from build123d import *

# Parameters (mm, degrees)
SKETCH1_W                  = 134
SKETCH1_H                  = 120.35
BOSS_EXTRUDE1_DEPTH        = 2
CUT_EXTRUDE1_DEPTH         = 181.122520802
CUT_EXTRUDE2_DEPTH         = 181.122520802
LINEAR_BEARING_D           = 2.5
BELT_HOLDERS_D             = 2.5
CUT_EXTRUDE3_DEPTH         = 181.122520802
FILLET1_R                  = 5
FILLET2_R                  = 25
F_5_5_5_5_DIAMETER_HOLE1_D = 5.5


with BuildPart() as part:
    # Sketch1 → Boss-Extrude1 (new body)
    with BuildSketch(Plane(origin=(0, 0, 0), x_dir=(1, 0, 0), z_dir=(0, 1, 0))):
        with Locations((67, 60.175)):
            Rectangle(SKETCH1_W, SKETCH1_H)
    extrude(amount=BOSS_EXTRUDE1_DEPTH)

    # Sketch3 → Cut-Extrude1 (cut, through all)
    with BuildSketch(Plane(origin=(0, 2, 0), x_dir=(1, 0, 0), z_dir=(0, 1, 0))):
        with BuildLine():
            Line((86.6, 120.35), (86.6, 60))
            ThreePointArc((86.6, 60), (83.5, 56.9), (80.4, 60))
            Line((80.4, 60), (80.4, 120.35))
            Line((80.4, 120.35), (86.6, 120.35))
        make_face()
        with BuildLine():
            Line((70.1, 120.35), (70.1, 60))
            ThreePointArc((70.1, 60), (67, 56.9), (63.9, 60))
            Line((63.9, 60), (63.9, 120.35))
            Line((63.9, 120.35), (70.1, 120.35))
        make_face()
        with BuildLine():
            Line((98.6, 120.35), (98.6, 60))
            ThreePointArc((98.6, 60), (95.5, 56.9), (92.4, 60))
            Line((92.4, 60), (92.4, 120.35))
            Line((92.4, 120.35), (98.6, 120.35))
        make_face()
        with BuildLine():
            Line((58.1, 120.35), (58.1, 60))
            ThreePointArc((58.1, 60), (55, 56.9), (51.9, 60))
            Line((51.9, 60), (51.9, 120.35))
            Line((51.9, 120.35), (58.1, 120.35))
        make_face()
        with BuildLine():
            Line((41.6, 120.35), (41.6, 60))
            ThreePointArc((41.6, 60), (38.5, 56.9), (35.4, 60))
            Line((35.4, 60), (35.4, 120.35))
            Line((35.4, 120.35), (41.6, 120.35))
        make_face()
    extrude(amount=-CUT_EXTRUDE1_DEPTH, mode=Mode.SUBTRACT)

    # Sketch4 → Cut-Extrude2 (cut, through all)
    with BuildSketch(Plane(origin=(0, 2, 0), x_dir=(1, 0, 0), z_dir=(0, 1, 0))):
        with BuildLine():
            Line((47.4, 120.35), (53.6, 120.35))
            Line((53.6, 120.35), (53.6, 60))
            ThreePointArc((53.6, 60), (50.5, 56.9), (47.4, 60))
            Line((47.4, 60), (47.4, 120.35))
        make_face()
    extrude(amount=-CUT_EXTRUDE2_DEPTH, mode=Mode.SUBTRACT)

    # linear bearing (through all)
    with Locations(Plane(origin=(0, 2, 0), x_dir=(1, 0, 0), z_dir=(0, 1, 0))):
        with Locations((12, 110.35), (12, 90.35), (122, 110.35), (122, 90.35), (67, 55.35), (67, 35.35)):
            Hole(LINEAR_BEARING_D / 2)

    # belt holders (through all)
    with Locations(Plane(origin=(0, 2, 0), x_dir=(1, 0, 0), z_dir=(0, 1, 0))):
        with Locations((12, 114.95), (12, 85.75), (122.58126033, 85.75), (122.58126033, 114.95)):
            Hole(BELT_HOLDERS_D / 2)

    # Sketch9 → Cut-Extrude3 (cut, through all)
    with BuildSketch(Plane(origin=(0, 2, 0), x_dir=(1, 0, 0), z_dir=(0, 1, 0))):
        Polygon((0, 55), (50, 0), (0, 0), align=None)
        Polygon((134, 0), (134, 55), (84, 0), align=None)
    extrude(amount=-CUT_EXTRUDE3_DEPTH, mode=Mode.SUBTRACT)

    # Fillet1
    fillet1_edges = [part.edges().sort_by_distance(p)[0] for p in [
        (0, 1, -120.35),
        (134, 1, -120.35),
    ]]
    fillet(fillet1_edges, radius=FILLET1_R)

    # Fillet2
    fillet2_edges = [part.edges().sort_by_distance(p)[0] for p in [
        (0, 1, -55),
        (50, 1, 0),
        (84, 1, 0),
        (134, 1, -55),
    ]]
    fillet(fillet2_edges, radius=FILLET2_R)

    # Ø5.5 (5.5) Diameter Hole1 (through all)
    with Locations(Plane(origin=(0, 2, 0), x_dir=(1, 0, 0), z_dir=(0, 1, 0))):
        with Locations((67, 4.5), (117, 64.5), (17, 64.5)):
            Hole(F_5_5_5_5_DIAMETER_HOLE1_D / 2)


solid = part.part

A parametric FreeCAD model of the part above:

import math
import FreeCAD as App
import Part
import Sketcher
from FreeCAD import Vector
Q = App.Units.Quantity


def edges_at(feature, points):
    """Names of the edges that pass closest to the given points."""
    edges = feature.Shape.Edges
    near = lambda p: min(range(len(edges)), key=lambda i: edges[i].distToShape(Part.Vertex(*p))[0])
    return sorted({f"Edge{near(p) + 1}" for p in points})


def add_polygon(sketch, points):
    """Adds a closed chain of lines whose ends are joined by coincident constraints."""
    first, n = sketch.GeometryCount, len(points)
    for a, b in zip(points, points[1:] + points[:1]):
        sketch.addGeometry(Part.LineSegment(App.Vector(*a, 0), App.Vector(*b, 0)), False)
    for i in range(n):
        sketch.addConstraint(Sketcher.Constraint("Coincident", first + i, 2, first + (i + 1) % n, 1))

doc = App.newDocument("Part")
body = doc.addObject("PartDesign::Body", "Body")

# Sketch on XZ plane
sketch1 = body.newObject("Sketcher::SketchObject", "Sketch")
sketch1.AttachmentSupport = (doc.getObject("XZ_Plane"), [""])
sketch1.MapMode = "FlatFace"
add_polygon(sketch1, [(0, -120), (0, 0), (134, 0), (134, -120)])  # lines 0-3
sketch1.addConstraint([
    Sketcher.Constraint("Vertical", 0),
    Sketcher.Constraint("Horizontal", 1),
    Sketcher.Constraint("Vertical", 2),
    Sketcher.Constraint("Horizontal", 3),
    Sketcher.Constraint("Coincident", 0, 2, -1, 1),
    Sketcher.Constraint("DistanceX", 1, 1, 1, 2, Q("134 mm")),
    Sketcher.Constraint("DistanceY", 0, 1, 0, 2, Q("120.35 mm")),
])
pad1 = body.newObject("PartDesign::Pad", "Pad")
pad1.Profile = sketch1
pad1.Length = 2
pad1.Reversed = True

# Sketch on XZ plane
sketch2 = body.newObject("Sketcher::SketchObject", "Sketch001")
sketch2.AttachmentSupport = (doc.getObject("XZ_Plane"), [""])
sketch2.MapMode = "FlatFace"
sketch2.AttachmentOffset = App.Placement(Vector(0, 0, -2), App.Rotation())
sketch2.addGeometry([
    Part.LineSegment(Vector(86.6, -60, 0), Vector(86.6, -120.3, 0)),  # 0
    Part.LineSegment(Vector(86.6, -120.3, 0), Vector(80.4, -120.3, 0)),  # 1
    Part.LineSegment(Vector(80.4, -120.3, 0), Vector(80.4, -60, 0)),  # 2
    Part.ArcOfCircle(Part.Circle(Vector(83.5, -60, 0), Vector(0, 0, 1), 3.1), math.radians(0), math.radians(180)),  # 3
    Part.LineSegment(Vector(70.1, -60, 0), Vector(70.1, -120.3, 0)),  # 4
    Part.LineSegment(Vector(70.1, -120.3, 0), Vector(63.9, -120.3, 0)),  # 5
    Part.LineSegment(Vector(63.9, -120.3, 0), Vector(63.9, -60, 0)),  # 6
    Part.ArcOfCircle(Part.Circle(Vector(67, -60, 0), Vector(0, 0, 1), 3.1), math.radians(0), math.radians(180)),  # 7
    Part.LineSegment(Vector(98.6, -60, 0), Vector(98.6, -120.3, 0)),  # 8
    Part.LineSegment(Vector(98.6, -120.3, 0), Vector(92.4, -120.3, 0)),  # 9
    Part.LineSegment(Vector(92.4, -120.3, 0), Vector(92.4, -60, 0)),  # 10
    Part.ArcOfCircle(Part.Circle(Vector(95.5, -60, 0), Vector(0, 0, 1), 3.1), math.radians(0), math.radians(180)),  # 11
    Part.LineSegment(Vector(58.1, -60, 0), Vector(58.1, -120.3, 0)),  # 12
    Part.LineSegment(Vector(58.1, -120.3, 0), Vector(51.9, -120.3, 0)),  # 13
    Part.LineSegment(Vector(51.9, -120.3, 0), Vector(51.9, -60, 0)),  # 14
    Part.ArcOfCircle(Part.Circle(Vector(55, -60, 0), Vector(0, 0, 1), 3.1), math.radians(0), math.radians(180)),  # 15
    Part.LineSegment(Vector(41.6, -60, 0), Vector(41.6, -120.3, 0)),  # 16
    Part.LineSegment(Vector(41.6, -120.3, 0), Vector(35.4, -120.3, 0)),  # 17
    Part.LineSegment(Vector(35.4, -120.3, 0), Vector(35.4, -60, 0)),  # 18
    Part.ArcOfCircle(Part.Circle(Vector(38.5, -60, 0), Vector(0, 0, 1), 3.1), math.radians(0), math.radians(180)),  # 19
], False)
sketch2.addConstraint([
    Sketcher.Constraint("Coincident", 0, 2, 1, 1),
    Sketcher.Constraint("Coincident", 1, 2, 2, 1),
    Sketcher.Constraint("Tangent", 2, 2, 3, 2),
    Sketcher.Constraint("Tangent", 3, 1, 0, 1),
    Sketcher.Constraint("Coincident", 4, 2, 5, 1),
    Sketcher.Constraint("Coincident", 5, 2, 6, 1),
    Sketcher.Constraint("Tangent", 6, 2, 7, 2),
    Sketcher.Constraint("Tangent", 7, 1, 4, 1),
    Sketcher.Constraint("Coincident", 8, 2, 9, 1),
    Sketcher.Constraint("Coincident", 9, 2, 10, 1),
    Sketcher.Constraint("Tangent", 10, 2, 11, 2),
    Sketcher.Constraint("Tangent", 11, 1, 8, 1),
    Sketcher.Constraint("Coincident", 12, 2, 13, 1),
    Sketcher.Constraint("Coincident", 13, 2, 14, 1),
    Sketcher.Constraint("Tangent", 14, 2, 15, 2),
    Sketcher.Constraint("Tangent", 15, 1, 12, 1),
    Sketcher.Constraint("Coincident", 16, 2, 17, 1),
    Sketcher.Constraint("Coincident", 17, 2, 18, 1),
    Sketcher.Constraint("Tangent", 18, 2, 19, 2),
    Sketcher.Constraint("Tangent", 19, 1, 16, 1),
    Sketcher.Constraint("Vertical", 0),
    Sketcher.Constraint("Horizontal", 1),
    Sketcher.Constraint("Vertical", 2),
    Sketcher.Constraint("Vertical", 4),
    Sketcher.Constraint("Horizontal", 5),
    Sketcher.Constraint("Vertical", 6),
    Sketcher.Constraint("Vertical", 8),
    Sketcher.Constraint("Horizontal", 9),
    Sketcher.Constraint("Vertical", 10),
    Sketcher.Constraint("Vertical", 12),
    Sketcher.Constraint("Horizontal", 13),
    Sketcher.Constraint("Vertical", 14),
    Sketcher.Constraint("Vertical", 16),
    Sketcher.Constraint("Horizontal", 17),
    Sketcher.Constraint("Vertical", 18),
    Sketcher.Constraint("Equal", 3, 7),
    Sketcher.Constraint("Equal", 7, 11),
    Sketcher.Constraint("Equal", 11, 15),
    Sketcher.Constraint("Equal", 15, 19),
    Sketcher.Constraint("Horizontal", 3, 3, 7, 3),
    Sketcher.Constraint("Horizontal", 7, 3, 11, 3),
    Sketcher.Constraint("Horizontal", 11, 3, 15, 3),
    Sketcher.Constraint("Horizontal", 15, 3, 19, 3),
    Sketcher.Constraint("Horizontal", 1, 2, 4, 2),
    Sketcher.Constraint("Horizontal", 5, 2, 8, 2),
    Sketcher.Constraint("Horizontal", 9, 2, 12, 2),
    Sketcher.Constraint("Horizontal", 13, 2, 16, 2),
    Sketcher.Constraint("Radius", 3, Q("3.1 mm")),
    Sketcher.Constraint("DistanceY", 3, 3, -1, 1, Q("60 mm")),
    Sketcher.Constraint("DistanceX", -1, 1, 7, 3, Q("67 mm")),
    Sketcher.Constraint("DistanceX", -1, 1, 15, 3, Q("55 mm")),
    Sketcher.Constraint("DistanceX", 3, 3, 11, 3, Q("12 mm")),
    Sketcher.Constraint("DistanceX", 19, 3, 3, 3, Q("45 mm")),
    Sketcher.Constraint("DistanceY", 0, 2, 0, 1, Q("60.35 mm")),
    Sketcher.Constraint("DistanceX", -1, 1, 3, 3, Q("83.5 mm")),
])
pocket1 = body.newObject("PartDesign::Pocket", "Pocket")
pocket1.Profile = sketch2
pocket1.Type = "ThroughAll"
pocket1.Reversed = True

# Sketch on XZ plane
sketch3 = body.newObject("Sketcher::SketchObject", "Sketch002")
sketch3.AttachmentSupport = (doc.getObject("XZ_Plane"), [""])
sketch3.MapMode = "FlatFace"
sketch3.AttachmentOffset = App.Placement(Vector(0, 0, -2), App.Rotation())
sketch3.addGeometry([
    Part.LineSegment(Vector(53.6, -120.3, 0), Vector(47.4, -120.3, 0)),
    Part.LineSegment(Vector(47.4, -120.3, 0), Vector(47.4, -60, 0)),
    Part.ArcOfCircle(Part.Circle(Vector(50.5, -60, 0), Vector(0, 0, 1), 3.1), math.radians(0), math.radians(180)),
    Part.LineSegment(Vector(53.6, -60, 0), Vector(53.6, -120.3, 0)),
], False)
sketch3.addConstraint([
    Sketcher.Constraint("Coincident", 0, 2, 1, 1),
    Sketcher.Constraint("Tangent", 1, 2, 2, 2),
    Sketcher.Constraint("Tangent", 2, 1, 3, 1),
    Sketcher.Constraint("Coincident", 3, 2, 0, 1),
    Sketcher.Constraint("Horizontal", 0),
    Sketcher.Constraint("Vertical", 1),
    Sketcher.Constraint("Vertical", 3),
    Sketcher.Constraint("Radius", 2, Q("3.1 mm")),
    Sketcher.Constraint("DistanceY", 2, 3, -1, 1, Q("60 mm")),
    Sketcher.Constraint("DistanceY", 1, 1, 1, 2, Q("60.35 mm")),
    Sketcher.Constraint("DistanceX", -1, 1, 2, 3, Q("50.5 mm")),
])
pocket2 = body.newObject("PartDesign::Pocket", "Pocket001")
pocket2.Profile = sketch3
pocket2.Type = "ThroughAll"
pocket2.Reversed = True

# Sketch on XZ plane
sketch4 = body.newObject("Sketcher::SketchObject", "Sketch003")
sketch4.AttachmentSupport = (doc.getObject("XZ_Plane"), [""])
sketch4.MapMode = "FlatFace"
sketch4.AttachmentOffset = App.Placement(Vector(0, 0, -2), App.Rotation())
sketch4.addGeometry([
    Part.Circle(Vector(12, -110.3, 0), Vector(0, 0, 1), 1.2),  # 0
    Part.Circle(Vector(12, -90.3, 0), Vector(0, 0, 1), 1.2),  # 1
    Part.Circle(Vector(122, -110.3, 0), Vector(0, 0, 1), 1.2),  # 2
    Part.Circle(Vector(122, -90.3, 0), Vector(0, 0, 1), 1.2),  # 3
    Part.Circle(Vector(67, -55.4, 0), Vector(0, 0, 1), 1.2),  # 4
    Part.Circle(Vector(67, -35.4, 0), Vector(0, 0, 1), 1.2),  # 5
], False)
sketch4.addConstraint([
    Sketcher.Constraint("Equal", 0, 1),
    Sketcher.Constraint("Equal", 1, 2),
    Sketcher.Constraint("Equal", 2, 3),
    Sketcher.Constraint("Equal", 3, 4),
    Sketcher.Constraint("Equal", 4, 5),
    Sketcher.Constraint("Horizontal", 0, 3, 2, 3),
    Sketcher.Constraint("Horizontal", 1, 3, 3, 3),
    Sketcher.Constraint("Vertical", 0, 3, 1, 3),
    Sketcher.Constraint("Vertical", 2, 3, 3, 3),
    Sketcher.Constraint("Vertical", 4, 3, 5, 3),
    Sketcher.Constraint("Diameter", 0, Q("2.5 mm")),
    Sketcher.Constraint("DistanceX", -1, 1, 0, 3, Q("12 mm")),
    Sketcher.Constraint("DistanceX", -1, 1, 2, 3, Q("122 mm")),
    Sketcher.Constraint("DistanceX", -1, 1, 4, 3, Q("67 mm")),
    Sketcher.Constraint("DistanceY", 0, 3, 1, 3, Q("20 mm")),
    Sketcher.Constraint("DistanceY", 1, 3, 4, 3, Q("35 mm")),
    Sketcher.Constraint("DistanceY", 4, 3, 5, 3, Q("20 mm")),
    Sketcher.Constraint("DistanceY", 0, 3, -1, 1, Q("110.35 mm")),
])
doc.recompute()
hole = body.newObject("PartDesign::Hole", "Hole")
hole.Profile = sketch4
hole.ThreadType = "None"
hole.Diameter = 2.5
hole.DepthType = "ThroughAll"
hole.Reversed = True

# Sketch on XZ plane
sketch5 = body.newObject("Sketcher::SketchObject", "Sketch004")
sketch5.AttachmentSupport = (doc.getObject("XZ_Plane"), [""])
sketch5.MapMode = "FlatFace"
sketch5.AttachmentOffset = App.Placement(Vector(0, 0, -2), App.Rotation())
sketch5.addGeometry([
    Part.Circle(Vector(12, -115, 0), Vector(0, 0, 1), 1.2),
    Part.Circle(Vector(12, -85.8, 0), Vector(0, 0, 1), 1.2),
    Part.Circle(Vector(122.6, -85.8, 0), Vector(0, 0, 1), 1.2),
    Part.Circle(Vector(122.6, -115, 0), Vector(0, 0, 1), 1.2),
], False)
sketch5.addConstraint([
    Sketcher.Constraint("Equal", 0, 1),
    Sketcher.Constraint("Equal", 1, 2),
    Sketcher.Constraint("Equal", 2, 3),
    Sketcher.Constraint("Horizontal", 1, 3, 2, 3),
    Sketcher.Constraint("Horizontal", 0, 3, 3, 3),
    Sketcher.Constraint("Vertical", 0, 3, 1, 3),
    Sketcher.Constraint("Vertical", 2, 3, 3, 3),
    Sketcher.Constraint("Diameter", 0, Q("2.5 mm")),
    Sketcher.Constraint("DistanceX", -1, 1, 0, 3, Q("12 mm")),
    Sketcher.Constraint("DistanceY", 0, 3, 1, 3, Q("29.2 mm")),
    Sketcher.Constraint("DistanceY", 0, 3, -1, 1, Q("114.95 mm")),
    Sketcher.Constraint("DistanceX", -1, 1, 2, 3, Q("122.58126 mm")),
])
doc.recompute()
hole2 = body.newObject("PartDesign::Hole", "Hole001")
hole2.Profile = sketch5
hole2.ThreadType = "None"
hole2.Diameter = 2.5
hole2.DepthType = "ThroughAll"
hole2.Reversed = True

# Sketch on XZ plane
sketch6 = body.newObject("Sketcher::SketchObject", "Sketch005")
sketch6.AttachmentSupport = (doc.getObject("XZ_Plane"), [""])
sketch6.MapMode = "FlatFace"
sketch6.AttachmentOffset = App.Placement(Vector(0, 0, -2), App.Rotation())
add_polygon(sketch6, [(50, 0), (0, -55), (0, 0)])  # lines 0-2
add_polygon(sketch6, [(134, 0), (134, -55), (84, 0)])  # lines 3-5
sketch6.addConstraint([
    Sketcher.Constraint("Vertical", 1),
    Sketcher.Constraint("Horizontal", 2),
    Sketcher.Constraint("Vertical", 3),
    Sketcher.Constraint("Horizontal", 5),
    Sketcher.Constraint("Coincident", 1, 2, -1, 1),
    Sketcher.Constraint("PointOnObject", 4, 2, -1),
    Sketcher.Constraint("Horizontal", 0, 2, 3, 2),
    Sketcher.Constraint("Equal", 2, 5),
    Sketcher.Constraint("DistanceX", 2, 1, 2, 2, Q("50 mm")),
    Sketcher.Constraint("DistanceY", 1, 1, 1, 2, Q("55 mm")),
    Sketcher.Constraint("DistanceX", -1, 1, 3, 2, Q("134 mm")),
])
pocket3 = body.newObject("PartDesign::Pocket", "Pocket002")
pocket3.Profile = sketch6
pocket3.Type = "ThroughAll"
pocket3.Reversed = True
doc.recompute()

fillet = body.newObject("PartDesign::Fillet", "Fillet")
fillet.Base = (pocket3, edges_at(pocket3, [(0, 1, -120.35), (134, 1, -120.35)]))
fillet.Radius = 5
doc.recompute()

fillet2 = body.newObject("PartDesign::Fillet", "Fillet001")
fillet2.Base = (fillet, edges_at(fillet, [
    (0, 1, -55),
    (50, 1, 0),
    (84, 1, 0),
    (134, 1, -55),
]))
fillet2.Radius = 25

# Sketch on XZ plane
sketch7 = body.newObject("Sketcher::SketchObject", "Sketch006")
sketch7.AttachmentSupport = (doc.getObject("XZ_Plane"), [""])
sketch7.MapMode = "FlatFace"
sketch7.AttachmentOffset = App.Placement(Vector(0, 0, -2), App.Rotation())
sketch7.addGeometry([
    Part.Circle(Vector(67, -4.5, 0), Vector(0, 0, 1), 2.8),
    Part.Circle(Vector(117, -64.5, 0), Vector(0, 0, 1), 2.8),
    Part.Circle(Vector(17, -64.5, 0), Vector(0, 0, 1), 2.8),
], False)
sketch7.addConstraint([
    Sketcher.Constraint("Equal", 0, 1),
    Sketcher.Constraint("Equal", 1, 2),
    Sketcher.Constraint("Horizontal", 1, 3, 2, 3),
    Sketcher.Constraint("Diameter", 0, Q("5.5 mm")),
    Sketcher.Constraint("DistanceX", -1, 1, 0, 3, Q("67 mm")),
    Sketcher.Constraint("DistanceX", -1, 1, 1, 3, Q("117 mm")),
    Sketcher.Constraint("DistanceX", -1, 1, 2, 3, Q("17 mm")),
    Sketcher.Constraint("DistanceY", 1, 3, 0, 3, Q("60 mm")),
    Sketcher.Constraint("DistanceY", 0, 3, -1, 1, Q("4.5 mm")),
])
doc.recompute()
hole3 = body.newObject("PartDesign::Hole", "Hole002")
hole3.Profile = sketch7
hole3.ThreadType = "None"
hole3.Diameter = 5.5
hole3.DepthType = "ThroughAll"
hole3.Reversed = True

doc.recompute()
